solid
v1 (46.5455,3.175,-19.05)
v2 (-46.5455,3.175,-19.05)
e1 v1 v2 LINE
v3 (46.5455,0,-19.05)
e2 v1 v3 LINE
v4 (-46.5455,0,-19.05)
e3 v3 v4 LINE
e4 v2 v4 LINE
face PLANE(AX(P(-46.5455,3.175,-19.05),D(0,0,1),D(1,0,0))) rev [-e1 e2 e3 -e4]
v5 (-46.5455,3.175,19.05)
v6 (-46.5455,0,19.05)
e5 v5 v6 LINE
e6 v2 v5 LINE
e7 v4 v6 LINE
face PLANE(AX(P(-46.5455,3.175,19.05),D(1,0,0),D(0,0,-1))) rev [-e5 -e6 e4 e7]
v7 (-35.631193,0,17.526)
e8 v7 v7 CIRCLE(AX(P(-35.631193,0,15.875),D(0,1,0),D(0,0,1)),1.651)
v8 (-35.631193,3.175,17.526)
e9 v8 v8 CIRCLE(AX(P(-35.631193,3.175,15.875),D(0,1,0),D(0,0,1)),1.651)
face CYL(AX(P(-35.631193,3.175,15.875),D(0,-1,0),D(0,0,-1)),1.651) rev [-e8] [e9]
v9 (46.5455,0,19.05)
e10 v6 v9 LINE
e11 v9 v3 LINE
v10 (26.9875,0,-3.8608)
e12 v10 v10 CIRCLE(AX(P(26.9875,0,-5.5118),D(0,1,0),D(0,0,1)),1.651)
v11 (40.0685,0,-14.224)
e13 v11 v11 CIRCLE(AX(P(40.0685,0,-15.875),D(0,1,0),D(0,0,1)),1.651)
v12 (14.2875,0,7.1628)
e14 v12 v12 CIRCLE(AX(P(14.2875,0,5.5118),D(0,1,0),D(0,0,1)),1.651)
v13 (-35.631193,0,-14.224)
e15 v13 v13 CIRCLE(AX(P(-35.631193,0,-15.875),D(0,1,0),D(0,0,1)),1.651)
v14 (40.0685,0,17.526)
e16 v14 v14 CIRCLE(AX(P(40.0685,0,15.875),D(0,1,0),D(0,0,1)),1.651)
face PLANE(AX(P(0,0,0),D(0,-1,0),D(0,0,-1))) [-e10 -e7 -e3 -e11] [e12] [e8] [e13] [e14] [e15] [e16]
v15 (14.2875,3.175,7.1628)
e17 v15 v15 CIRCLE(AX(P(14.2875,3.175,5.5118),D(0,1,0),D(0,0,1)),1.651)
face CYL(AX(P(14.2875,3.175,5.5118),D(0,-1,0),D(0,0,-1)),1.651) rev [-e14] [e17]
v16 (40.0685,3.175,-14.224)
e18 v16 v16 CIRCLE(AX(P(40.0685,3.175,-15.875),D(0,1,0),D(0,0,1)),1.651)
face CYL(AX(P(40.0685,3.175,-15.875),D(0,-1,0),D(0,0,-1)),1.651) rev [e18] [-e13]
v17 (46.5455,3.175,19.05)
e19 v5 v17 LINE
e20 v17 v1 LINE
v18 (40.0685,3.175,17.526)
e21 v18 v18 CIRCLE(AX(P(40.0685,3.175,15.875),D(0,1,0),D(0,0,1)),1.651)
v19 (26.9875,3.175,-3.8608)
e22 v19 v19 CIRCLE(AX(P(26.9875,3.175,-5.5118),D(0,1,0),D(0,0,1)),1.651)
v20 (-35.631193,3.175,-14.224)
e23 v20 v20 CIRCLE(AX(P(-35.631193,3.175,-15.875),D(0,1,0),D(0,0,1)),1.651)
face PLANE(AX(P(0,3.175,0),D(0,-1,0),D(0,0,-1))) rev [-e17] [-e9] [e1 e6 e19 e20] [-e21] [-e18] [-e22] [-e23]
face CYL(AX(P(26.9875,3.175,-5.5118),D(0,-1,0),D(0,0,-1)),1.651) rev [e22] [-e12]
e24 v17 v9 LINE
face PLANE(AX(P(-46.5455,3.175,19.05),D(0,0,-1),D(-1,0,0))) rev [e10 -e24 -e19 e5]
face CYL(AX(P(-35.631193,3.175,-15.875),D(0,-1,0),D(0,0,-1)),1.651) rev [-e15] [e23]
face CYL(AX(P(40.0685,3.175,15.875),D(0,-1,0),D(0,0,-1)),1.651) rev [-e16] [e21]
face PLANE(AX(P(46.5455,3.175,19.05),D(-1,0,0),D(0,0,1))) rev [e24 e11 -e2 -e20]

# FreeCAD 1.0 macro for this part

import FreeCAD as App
import Part
import Sketcher
from FreeCAD import Vector
Q = App.Units.Quantity


def add_polygon(sketch, points):
    """Adds a closed chain of lines whose ends are joined by coincident constraints."""
    first, n = sketch.GeometryCount, len(points)
    for a, b in zip(points, points[1:] + points[:1]):
        sketch.addGeometry(Part.LineSegment(App.Vector(*a, 0), App.Vector(*b, 0)), False)
    for i in range(n):
        sketch.addConstraint(Sketcher.Constraint("Coincident", first + i, 2, first + (i + 1) % n, 1))

doc = App.newDocument("Part")
body = doc.addObject("PartDesign::Body", "Body")

# Sketch on XZ plane
sketch1 = doc.addObject("Sketcher::SketchObject", "Sketch")
body.addObject(sketch1)
sketch1.AttachmentSupport = (doc.XZ_Plane, [""])
sketch1.MapMode = "FlatFace"
add_polygon(sketch1, [(-46.5, -19.1), (-46.5, 19.1), (46.5, 19.1), (46.5, -19.1)])  # lines 0-3
sketch1.addGeometry(Part.Circle(Vector(-35.6, 15.9, 0), Vector(0, 0, 1), 1.7), False)  # 4
sketch1.addGeometry(Part.Circle(Vector(40.1, 15.9, 0), Vector(0, 0, 1), 1.7), False)  # 5
sketch1.addGeometry(Part.Circle(Vector(14.3, 5.5, 0), Vector(0, 0, 1), 1.7), False)  # 6
sketch1.addGeometry(Part.Circle(Vector(-35.6, -15.9, 0), Vector(0, 0, 1), 1.7), False)  # 7
sketch1.addGeometry(Part.Circle(Vector(27, -5.5, 0), Vector(0, 0, 1), 1.7), False)  # 8
sketch1.addGeometry(Part.Circle(Vector(40.1, -15.9, 0), Vector(0, 0, 1), 1.7), False)  # 9
sketch1.addConstraint([
    Sketcher.Constraint("Vertical", 0),
    Sketcher.Constraint("Horizontal", 1),
    Sketcher.Constraint("Vertical", 2),
    Sketcher.Constraint("Horizontal", 3),
    Sketcher.Constraint("Equal", 4, 5),
    Sketcher.Constraint("Equal", 5, 6),
    Sketcher.Constraint("Equal", 6, 7),
    Sketcher.Constraint("Equal", 7, 8),
    Sketcher.Constraint("Equal", 8, 9),
    Sketcher.Constraint("Symmetric", 0, 2, 2, 2, -1, 1),
    Sketcher.Constraint("Symmetric", 4, 3, 7, 3, -1),
    Sketcher.Constraint("Symmetric", 5, 3, 9, 3, -1),
    Sketcher.Constraint("Horizontal", 4, 3, 5, 3),
    Sketcher.Constraint("Diameter", 4, Q("0.13 in")),
    Sketcher.Constraint("DistanceY", 0, 1, 0, 2, Q("1.5 in")),
    Sketcher.Constraint("DistanceX", 6, 3, 8, 3, Q("0.5 in")),
    Sketcher.Constraint("DistanceX", 1, 1, 1, 2, Q("3.665 in")),
    Sketcher.Constraint("DistanceY", 7, 3, 4, 3, Q("1.25 in")),
    Sketcher.Constraint("DistanceX", 0, 2, 5, 3, Q("3.41 in")),
    Sketcher.Constraint("DistanceX", 8, 3, 1, 2, Q("0.77 in")),
    Sketcher.Constraint("DistanceY", -1, 1, 6, 3, Q("0.217 in")),
    Sketcher.Constraint("DistanceY", 8, 3, -1, 1, Q("0.217 in")),
    Sketcher.Constraint("DistanceX", 4, 3, -1, 1, 35.631193),
])
pad1 = doc.addObject("PartDesign::Pad", "Pad")
body.addObject(pad1)
pad1.Profile = sketch1
pad1.Length = Q("0.125 in")
pad1.Reversed = True

doc.recompute()
